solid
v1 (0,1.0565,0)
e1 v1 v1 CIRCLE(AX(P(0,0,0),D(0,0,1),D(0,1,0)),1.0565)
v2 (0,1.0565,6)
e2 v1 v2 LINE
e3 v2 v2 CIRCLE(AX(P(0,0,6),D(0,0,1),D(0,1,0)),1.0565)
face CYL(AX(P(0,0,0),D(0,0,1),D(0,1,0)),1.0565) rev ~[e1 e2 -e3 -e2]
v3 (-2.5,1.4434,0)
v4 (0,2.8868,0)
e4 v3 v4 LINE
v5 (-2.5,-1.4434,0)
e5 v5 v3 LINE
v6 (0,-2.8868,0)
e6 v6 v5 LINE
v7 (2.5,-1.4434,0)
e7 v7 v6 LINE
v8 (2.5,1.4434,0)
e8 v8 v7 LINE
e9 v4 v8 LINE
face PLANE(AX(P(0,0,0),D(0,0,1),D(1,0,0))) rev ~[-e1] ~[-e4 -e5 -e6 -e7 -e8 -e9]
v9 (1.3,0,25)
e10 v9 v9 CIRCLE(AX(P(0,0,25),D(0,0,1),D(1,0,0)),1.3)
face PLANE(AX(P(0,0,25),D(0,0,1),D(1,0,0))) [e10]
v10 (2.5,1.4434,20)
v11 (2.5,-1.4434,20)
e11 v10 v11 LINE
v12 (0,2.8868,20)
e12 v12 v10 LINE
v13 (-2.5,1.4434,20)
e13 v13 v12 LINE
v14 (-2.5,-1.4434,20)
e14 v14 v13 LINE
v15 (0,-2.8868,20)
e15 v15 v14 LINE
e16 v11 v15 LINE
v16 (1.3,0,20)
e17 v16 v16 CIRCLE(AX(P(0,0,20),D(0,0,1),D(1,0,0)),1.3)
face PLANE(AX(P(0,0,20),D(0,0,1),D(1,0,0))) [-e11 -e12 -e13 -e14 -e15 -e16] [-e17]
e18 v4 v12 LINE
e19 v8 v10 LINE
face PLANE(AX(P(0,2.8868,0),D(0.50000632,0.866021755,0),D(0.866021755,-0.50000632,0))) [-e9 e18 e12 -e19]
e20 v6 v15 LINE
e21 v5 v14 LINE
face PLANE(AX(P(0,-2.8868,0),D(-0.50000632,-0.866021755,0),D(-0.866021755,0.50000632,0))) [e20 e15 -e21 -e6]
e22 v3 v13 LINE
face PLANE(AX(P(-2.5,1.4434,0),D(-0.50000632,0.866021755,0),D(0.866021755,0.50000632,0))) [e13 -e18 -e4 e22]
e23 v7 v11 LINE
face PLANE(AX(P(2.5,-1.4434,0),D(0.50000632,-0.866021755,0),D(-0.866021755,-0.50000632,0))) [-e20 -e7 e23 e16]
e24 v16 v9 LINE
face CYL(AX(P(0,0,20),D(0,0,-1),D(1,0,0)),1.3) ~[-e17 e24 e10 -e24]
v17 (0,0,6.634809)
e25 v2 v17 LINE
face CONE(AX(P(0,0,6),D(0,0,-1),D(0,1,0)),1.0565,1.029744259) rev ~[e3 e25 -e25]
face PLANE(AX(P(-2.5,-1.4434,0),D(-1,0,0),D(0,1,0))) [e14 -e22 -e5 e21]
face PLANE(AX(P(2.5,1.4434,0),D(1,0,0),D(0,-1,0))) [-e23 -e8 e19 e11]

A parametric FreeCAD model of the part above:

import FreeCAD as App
import Part
import Sketcher
Q = App.Units.Quantity

doc = App.newDocument("Part")
body = doc.addObject("PartDesign::Body", "Body")

# Sketch on XY plane
sketch1 = body.newObject("Sketcher::SketchObject", "Sketch")
sketch1.AttachmentSupport = (doc.getObject("XY_Plane"), [""])
sketch1.MapMode = "FlatFace"
sketch1.addGeometry([
    Part.LineSegment(App.Vector(2.5, 1.4, 0), App.Vector(0, 2.9, 0)),  # 0
    Part.LineSegment(App.Vector(0, 2.9, 0), App.Vector(-2.5, 1.4, 0)),  # 1
    Part.LineSegment(App.Vector(-2.5, 1.4, 0), App.Vector(-2.5, -1.4, 0)),  # 2
    Part.LineSegment(App.Vector(-2.5, -1.4, 0), App.Vector(0, -2.9, 0)),  # 3
    Part.LineSegment(App.Vector(0, -2.9, 0), App.Vector(2.5, -1.4, 0)),  # 4
    Part.LineSegment(App.Vector(2.5, -1.4, 0), App.Vector(2.5, 1.4, 0)),  # 5
], False)
sketch1.addConstraint([
    Sketcher.Constraint("Coincident", 0, 2, 1, 1),
    Sketcher.Constraint("Coincident", 1, 2, 2, 1),
    Sketcher.Constraint("Coincident", 2, 2, 3, 1),
    Sketcher.Constraint("Coincident", 3, 2, 4, 1),
    Sketcher.Constraint("Coincident", 4, 2, 5, 1),
    Sketcher.Constraint("Coincident", 5, 2, 0, 1),
    Sketcher.Constraint("Vertical", 2),
    Sketcher.Constraint("Vertical", 5),
    Sketcher.Constraint("Symmetric", 0, 2, 3, 2, -1, 1),
    Sketcher.Constraint("Symmetric", 1, 2, 4, 2, -1, 1),
    Sketcher.Constraint("PointOnObject", 0, 2, -2),
    Sketcher.Constraint("Parallel", 0, 3),
    Sketcher.Constraint("Horizontal", 2, 2, 4, 2),
    Sketcher.Constraint("DistanceX", 2, 2, 4, 2, Q("5 mm")),
    Sketcher.Constraint("Angle", 0, Q("149.9996 deg")),
    Sketcher.Constraint("DistanceY", 2, 2, 2, 1, Q("2.8868 mm")),
])
pad1 = body.newObject("PartDesign::Pad", "Pad")
pad1.Profile = sketch1
pad1.Length = 20

# Sketch on XY plane
sketch2 = body.newObject("Sketcher::SketchObject", "Sketch001")
sketch2.AttachmentSupport = (doc.getObject("XY_Plane"), [""])
sketch2.MapMode = "FlatFace"
sketch2.AttachmentOffset = App.Placement(App.Vector(0, 0, 20), App.Rotation())
sketch2.addGeometry(Part.Circle(App.Vector(0, 0, 0), App.Vector(0, 0, 1), 1.3), False)
sketch2.addConstraint([
    Sketcher.Constraint("Coincident", 0, 3, -1, 1),
    Sketcher.Constraint("Diameter", 0, Q("2.6 mm")),
])
pad2 = body.newObject("PartDesign::Pad", "Pad001")
pad2.Profile = sketch2
pad2.Length = 5

# Sketch on XY plane
sketch3 = body.newObject("Sketcher::SketchObject", "Sketch002")
sketch3.AttachmentSupport = (doc.getObject("XY_Plane"), [""])
sketch3.MapMode = "FlatFace"
sketch3.addGeometry(Part.Circle(App.Vector(0, 0, 0), App.Vector(0, 0, 1), 1.1), False)
sketch3.addConstraint([
    Sketcher.Constraint("Coincident", 0, 3, -1, 1),
    Sketcher.Constraint("Diameter", 0, Q("2.113 mm")),
])
doc.recompute()
hole = body.newObject("PartDesign::Hole", "Hole")
hole.Profile = sketch3
hole.ThreadType = "None"
hole.Diameter = 2.113
hole.DepthType = "Dimension"
hole.Depth = 6
hole.DrillPoint = "Angled"
hole.DrillPointAngle = 118
hole.Reversed = True

doc.recompute()
